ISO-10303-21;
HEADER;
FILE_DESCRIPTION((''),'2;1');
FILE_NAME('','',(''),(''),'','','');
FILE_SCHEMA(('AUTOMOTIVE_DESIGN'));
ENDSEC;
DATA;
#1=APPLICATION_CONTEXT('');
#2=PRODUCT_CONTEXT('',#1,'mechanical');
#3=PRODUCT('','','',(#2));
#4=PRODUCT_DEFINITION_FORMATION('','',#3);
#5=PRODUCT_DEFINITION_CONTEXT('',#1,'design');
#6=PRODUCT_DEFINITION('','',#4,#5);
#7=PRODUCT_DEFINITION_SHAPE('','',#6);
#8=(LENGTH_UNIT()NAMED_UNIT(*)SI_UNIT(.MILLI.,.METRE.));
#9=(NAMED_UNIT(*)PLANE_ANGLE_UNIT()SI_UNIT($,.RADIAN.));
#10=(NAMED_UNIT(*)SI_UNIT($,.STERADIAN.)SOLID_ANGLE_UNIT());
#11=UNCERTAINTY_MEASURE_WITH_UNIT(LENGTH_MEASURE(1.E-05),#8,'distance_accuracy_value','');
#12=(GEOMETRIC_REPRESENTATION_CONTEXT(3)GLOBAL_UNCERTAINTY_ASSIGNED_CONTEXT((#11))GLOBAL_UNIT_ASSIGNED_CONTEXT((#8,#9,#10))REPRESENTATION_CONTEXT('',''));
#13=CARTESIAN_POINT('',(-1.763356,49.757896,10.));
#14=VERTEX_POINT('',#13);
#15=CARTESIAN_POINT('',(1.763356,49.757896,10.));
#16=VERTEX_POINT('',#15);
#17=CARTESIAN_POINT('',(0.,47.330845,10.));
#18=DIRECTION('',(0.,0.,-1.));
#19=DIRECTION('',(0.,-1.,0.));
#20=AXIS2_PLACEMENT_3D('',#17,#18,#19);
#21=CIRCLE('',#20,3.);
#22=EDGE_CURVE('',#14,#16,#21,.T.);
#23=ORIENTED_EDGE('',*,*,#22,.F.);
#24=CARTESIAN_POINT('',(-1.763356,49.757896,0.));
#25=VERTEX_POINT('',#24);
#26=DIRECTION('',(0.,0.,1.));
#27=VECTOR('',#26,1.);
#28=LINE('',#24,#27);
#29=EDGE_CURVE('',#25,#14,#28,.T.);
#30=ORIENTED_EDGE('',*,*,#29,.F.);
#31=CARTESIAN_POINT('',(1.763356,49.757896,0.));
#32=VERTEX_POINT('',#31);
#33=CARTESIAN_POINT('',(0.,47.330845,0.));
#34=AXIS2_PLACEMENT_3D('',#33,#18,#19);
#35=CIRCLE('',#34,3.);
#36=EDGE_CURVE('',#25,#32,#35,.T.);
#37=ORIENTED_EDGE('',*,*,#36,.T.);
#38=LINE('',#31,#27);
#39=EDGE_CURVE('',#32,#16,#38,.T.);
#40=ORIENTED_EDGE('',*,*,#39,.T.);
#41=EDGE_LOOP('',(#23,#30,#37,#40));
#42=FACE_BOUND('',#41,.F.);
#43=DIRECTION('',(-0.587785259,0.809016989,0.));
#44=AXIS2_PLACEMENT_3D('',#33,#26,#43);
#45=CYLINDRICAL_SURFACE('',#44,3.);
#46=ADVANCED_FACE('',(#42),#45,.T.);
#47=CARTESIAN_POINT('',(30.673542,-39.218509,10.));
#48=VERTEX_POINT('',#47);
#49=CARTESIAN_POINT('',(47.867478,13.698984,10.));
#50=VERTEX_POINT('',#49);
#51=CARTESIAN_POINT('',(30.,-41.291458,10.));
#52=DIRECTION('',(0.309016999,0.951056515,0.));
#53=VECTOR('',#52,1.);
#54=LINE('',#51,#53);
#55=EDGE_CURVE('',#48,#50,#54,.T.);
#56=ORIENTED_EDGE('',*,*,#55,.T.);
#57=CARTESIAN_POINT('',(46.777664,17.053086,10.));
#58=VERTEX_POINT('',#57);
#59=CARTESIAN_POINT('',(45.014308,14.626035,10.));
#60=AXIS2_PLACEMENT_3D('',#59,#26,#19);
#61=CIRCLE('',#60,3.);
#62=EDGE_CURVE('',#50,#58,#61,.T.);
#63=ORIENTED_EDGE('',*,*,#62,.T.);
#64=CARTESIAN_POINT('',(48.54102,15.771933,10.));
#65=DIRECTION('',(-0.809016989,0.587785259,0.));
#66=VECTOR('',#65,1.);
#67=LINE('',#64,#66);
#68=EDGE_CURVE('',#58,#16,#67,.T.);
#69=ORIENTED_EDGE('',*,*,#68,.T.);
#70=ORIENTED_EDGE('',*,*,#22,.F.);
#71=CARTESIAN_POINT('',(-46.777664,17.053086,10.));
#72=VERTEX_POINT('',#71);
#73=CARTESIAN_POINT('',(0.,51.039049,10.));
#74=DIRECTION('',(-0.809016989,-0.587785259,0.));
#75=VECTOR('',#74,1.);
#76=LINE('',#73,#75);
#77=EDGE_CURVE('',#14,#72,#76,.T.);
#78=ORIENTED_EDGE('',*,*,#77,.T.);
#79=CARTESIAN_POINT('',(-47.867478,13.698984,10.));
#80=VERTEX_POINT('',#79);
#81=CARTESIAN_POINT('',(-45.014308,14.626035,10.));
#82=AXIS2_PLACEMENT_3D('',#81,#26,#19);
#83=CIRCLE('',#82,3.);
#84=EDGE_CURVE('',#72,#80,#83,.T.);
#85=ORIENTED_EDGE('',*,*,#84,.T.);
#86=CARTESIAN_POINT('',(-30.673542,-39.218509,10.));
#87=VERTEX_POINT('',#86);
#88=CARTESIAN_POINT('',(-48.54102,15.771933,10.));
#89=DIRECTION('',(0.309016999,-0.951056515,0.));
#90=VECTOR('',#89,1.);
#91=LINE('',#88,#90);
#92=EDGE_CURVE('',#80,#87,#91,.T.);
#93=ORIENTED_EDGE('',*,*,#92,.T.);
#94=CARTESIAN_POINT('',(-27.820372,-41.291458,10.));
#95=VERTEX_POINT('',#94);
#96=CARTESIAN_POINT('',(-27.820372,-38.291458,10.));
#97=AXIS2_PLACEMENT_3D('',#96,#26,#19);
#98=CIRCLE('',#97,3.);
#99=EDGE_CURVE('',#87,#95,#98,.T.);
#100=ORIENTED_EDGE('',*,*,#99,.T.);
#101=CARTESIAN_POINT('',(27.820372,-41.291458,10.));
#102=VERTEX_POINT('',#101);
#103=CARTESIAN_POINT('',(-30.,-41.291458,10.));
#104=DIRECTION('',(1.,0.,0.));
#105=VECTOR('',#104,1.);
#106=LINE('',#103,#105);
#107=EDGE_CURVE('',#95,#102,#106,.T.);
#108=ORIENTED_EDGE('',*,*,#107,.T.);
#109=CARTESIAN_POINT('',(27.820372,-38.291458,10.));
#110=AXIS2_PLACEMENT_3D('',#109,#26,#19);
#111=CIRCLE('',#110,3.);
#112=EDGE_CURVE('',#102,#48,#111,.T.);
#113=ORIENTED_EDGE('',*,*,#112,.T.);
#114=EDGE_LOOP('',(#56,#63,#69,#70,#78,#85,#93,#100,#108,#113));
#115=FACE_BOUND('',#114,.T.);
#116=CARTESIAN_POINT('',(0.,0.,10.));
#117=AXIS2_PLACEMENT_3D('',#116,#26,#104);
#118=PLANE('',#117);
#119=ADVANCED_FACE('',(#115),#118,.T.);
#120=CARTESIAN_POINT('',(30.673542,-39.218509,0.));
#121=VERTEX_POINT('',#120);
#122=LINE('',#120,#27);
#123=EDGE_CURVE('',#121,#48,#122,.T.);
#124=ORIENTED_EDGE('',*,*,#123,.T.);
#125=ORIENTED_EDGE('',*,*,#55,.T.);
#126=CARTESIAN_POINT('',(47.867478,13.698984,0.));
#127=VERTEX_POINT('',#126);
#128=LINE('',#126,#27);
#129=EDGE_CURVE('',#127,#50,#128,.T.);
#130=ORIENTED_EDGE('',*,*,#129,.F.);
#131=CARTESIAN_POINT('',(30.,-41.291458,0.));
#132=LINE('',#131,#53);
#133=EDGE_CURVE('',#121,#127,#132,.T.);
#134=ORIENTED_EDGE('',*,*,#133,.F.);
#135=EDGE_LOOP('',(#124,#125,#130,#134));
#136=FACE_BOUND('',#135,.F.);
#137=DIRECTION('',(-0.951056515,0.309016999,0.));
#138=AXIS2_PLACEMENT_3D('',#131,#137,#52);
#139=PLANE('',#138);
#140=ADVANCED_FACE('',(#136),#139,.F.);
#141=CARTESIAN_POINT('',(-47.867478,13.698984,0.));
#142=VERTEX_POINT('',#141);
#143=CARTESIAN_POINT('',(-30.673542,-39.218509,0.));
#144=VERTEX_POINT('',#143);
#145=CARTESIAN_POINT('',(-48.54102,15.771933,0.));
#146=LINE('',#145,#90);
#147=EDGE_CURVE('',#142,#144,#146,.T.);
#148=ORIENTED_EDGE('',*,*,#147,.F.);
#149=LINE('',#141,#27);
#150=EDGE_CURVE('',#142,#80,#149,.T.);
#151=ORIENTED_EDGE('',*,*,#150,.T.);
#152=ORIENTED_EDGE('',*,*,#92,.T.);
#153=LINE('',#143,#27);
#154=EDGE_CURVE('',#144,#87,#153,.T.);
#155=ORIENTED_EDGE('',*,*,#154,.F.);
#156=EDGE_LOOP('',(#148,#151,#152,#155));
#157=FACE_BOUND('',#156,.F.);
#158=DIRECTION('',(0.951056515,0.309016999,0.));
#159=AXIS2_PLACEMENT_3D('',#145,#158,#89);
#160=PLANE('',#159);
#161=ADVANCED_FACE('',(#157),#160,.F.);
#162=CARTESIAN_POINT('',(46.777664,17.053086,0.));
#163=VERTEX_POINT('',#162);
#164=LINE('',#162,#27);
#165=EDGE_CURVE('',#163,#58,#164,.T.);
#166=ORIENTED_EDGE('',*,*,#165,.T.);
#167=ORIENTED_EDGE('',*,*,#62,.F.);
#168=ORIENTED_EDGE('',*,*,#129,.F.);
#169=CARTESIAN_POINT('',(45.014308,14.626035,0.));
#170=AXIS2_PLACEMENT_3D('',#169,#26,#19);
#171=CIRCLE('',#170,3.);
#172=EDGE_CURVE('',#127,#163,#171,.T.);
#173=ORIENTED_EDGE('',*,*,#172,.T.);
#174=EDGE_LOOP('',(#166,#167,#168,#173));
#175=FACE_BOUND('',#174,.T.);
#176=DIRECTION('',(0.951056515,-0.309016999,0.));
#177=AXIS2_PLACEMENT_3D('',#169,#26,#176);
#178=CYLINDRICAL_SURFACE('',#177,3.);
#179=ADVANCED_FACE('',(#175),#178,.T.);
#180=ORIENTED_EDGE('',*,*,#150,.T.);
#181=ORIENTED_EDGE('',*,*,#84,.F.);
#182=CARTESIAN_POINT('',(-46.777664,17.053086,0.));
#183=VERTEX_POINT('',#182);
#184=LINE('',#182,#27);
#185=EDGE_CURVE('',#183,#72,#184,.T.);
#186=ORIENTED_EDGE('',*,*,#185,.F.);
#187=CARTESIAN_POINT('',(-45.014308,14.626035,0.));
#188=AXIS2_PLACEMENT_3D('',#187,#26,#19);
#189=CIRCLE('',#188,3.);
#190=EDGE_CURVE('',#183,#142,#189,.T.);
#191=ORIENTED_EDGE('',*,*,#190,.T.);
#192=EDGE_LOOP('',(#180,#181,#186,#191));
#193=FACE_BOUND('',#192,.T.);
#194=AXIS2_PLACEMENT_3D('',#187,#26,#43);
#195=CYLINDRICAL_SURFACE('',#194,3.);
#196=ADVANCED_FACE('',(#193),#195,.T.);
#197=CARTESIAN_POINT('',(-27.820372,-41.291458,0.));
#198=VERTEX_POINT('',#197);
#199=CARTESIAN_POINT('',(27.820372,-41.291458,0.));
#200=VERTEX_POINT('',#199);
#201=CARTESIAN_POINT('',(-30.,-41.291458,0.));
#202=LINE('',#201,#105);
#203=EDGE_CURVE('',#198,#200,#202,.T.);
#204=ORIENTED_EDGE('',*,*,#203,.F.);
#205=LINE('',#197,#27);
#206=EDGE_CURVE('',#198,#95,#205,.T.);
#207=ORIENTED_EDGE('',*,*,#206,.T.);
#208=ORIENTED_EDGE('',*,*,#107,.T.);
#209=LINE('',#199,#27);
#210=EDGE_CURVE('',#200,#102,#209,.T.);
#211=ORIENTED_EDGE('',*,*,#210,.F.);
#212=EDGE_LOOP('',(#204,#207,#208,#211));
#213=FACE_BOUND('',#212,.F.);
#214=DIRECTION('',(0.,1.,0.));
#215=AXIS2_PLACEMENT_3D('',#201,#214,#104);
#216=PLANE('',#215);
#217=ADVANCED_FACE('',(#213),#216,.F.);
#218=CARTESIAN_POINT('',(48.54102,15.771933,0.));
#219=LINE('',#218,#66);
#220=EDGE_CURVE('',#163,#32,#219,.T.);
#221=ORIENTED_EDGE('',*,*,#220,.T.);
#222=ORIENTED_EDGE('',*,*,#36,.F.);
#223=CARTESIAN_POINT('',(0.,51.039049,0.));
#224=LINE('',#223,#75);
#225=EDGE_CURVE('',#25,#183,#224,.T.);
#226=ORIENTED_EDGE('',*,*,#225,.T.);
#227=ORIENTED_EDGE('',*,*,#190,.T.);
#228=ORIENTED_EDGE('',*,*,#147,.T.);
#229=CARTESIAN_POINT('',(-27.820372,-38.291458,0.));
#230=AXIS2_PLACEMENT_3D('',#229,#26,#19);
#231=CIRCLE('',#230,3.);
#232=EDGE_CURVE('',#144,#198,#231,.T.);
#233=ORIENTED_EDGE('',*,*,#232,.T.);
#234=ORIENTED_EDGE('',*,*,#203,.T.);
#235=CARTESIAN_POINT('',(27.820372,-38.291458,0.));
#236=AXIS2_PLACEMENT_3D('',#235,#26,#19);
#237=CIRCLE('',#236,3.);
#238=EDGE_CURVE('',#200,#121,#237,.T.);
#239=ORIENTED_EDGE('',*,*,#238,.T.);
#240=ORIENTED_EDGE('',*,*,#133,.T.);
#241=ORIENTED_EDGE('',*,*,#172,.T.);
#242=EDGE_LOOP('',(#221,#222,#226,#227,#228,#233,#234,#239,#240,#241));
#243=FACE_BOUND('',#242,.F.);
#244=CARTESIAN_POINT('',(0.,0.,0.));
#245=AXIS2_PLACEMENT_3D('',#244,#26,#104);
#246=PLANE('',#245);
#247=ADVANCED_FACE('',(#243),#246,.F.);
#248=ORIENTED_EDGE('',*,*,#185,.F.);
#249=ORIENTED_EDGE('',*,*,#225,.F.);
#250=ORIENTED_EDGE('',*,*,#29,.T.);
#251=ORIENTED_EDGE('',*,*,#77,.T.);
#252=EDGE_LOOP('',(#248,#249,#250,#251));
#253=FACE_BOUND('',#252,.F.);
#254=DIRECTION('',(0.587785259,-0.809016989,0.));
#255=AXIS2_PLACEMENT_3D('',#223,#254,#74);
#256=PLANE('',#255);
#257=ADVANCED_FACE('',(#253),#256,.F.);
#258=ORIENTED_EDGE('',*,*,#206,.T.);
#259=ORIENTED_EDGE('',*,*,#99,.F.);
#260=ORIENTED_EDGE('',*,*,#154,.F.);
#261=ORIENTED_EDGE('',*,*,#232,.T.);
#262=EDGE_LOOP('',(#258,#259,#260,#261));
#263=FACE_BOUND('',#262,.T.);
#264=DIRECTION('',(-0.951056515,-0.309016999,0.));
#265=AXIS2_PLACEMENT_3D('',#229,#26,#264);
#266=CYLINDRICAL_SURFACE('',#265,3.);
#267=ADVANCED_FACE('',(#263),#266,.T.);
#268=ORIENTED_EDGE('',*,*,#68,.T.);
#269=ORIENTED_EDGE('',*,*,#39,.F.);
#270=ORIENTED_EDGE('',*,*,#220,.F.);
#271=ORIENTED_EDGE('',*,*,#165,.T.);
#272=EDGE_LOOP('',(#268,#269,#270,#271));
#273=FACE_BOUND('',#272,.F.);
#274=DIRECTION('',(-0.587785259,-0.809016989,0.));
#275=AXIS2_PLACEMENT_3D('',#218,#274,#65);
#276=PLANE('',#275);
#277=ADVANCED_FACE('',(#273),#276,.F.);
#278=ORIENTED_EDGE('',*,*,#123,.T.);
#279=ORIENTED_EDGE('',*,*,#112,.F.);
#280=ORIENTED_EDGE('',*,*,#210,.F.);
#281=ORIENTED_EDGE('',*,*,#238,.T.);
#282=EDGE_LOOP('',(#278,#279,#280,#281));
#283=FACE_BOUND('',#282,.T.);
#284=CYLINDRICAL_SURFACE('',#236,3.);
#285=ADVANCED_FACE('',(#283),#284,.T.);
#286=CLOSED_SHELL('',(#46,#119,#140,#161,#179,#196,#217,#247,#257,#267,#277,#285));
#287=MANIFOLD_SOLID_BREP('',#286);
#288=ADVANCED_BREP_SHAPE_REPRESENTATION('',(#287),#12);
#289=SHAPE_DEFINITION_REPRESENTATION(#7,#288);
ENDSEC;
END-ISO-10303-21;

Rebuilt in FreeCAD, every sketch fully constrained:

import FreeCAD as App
import Part
import Sketcher

V = App.Vector
Q = App.Units.Quantity


def edges_at(feature, points):
    """Names of the edges that pass closest to the given points."""
    edges = feature.Shape.Edges
    near = lambda p: min(range(len(edges)), key=lambda i: edges[i].distToShape(Part.Vertex(*p))[0])
    return sorted({f"Edge{near(p) + 1}" for p in points})

doc = App.newDocument("Part")
body = doc.addObject("PartDesign::Body", "Body")

sketch1 = body.newObject("Sketcher::SketchObject", "Sketch")
sketch1.AttachmentSupport = (doc.getObject("XY_Plane"), [""])
sketch1.MapMode = "FlatFace"
sketch1.addGeometry(Part.LineSegment(V(0, 51.039049, 0), V(-48.54102, 15.771933, 0)), False)
sketch1.addGeometry(Part.LineSegment(V(-48.54102, 15.771933, 0), V(-30, -41.291458, 0)), False)
sketch1.addGeometry(Part.LineSegment(V(-30, -41.291458, 0), V(30, -41.291458, 0)), False)
sketch1.addGeometry(Part.LineSegment(V(30, -41.291458, 0), V(48.54102, 15.771933, 0)), False)
sketch1.addGeometry(Part.LineSegment(V(48.54102, 15.771933, 0), V(0, 51.039049, 0)), False)
sketch1.addConstraint(Sketcher.Constraint("Coincident", 0, 2, 1, 1))
sketch1.addConstraint(Sketcher.Constraint("Coincident", 1, 2, 2, 1))
sketch1.addConstraint(Sketcher.Constraint("Coincident", 2, 2, 3, 1))
sketch1.addConstraint(Sketcher.Constraint("Coincident", 3, 2, 4, 1))
sketch1.addConstraint(Sketcher.Constraint("Coincident", 4, 2, 0, 1))
sketch1.addConstraint(Sketcher.Constraint("Horizontal", 2))
sketch1.addConstraint(Sketcher.Constraint("Symmetric", 0, 2, 3, 2, -2))
sketch1.addConstraint(Sketcher.Constraint("PointOnObject", 4, 2, -2))
sketch1.addConstraint(Sketcher.Constraint("Equal", 0, 1))
sketch1.addConstraint(Sketcher.Constraint("Equal", 1, 3))
sketch1.addConstraint(Sketcher.Constraint("DistanceX", 2, 1, 2, 2, 60.0))
sketch1.addConstraint(Sketcher.Constraint("Angle", 0, Q("-144 deg")))
sketch1.addConstraint(Sketcher.Constraint("Angle", 1, Q("-72 deg")))
sketch1.addConstraint(Sketcher.Constraint("DistanceY", -1, 1, 4, 2, 51.039049))
pad1 = body.newObject("PartDesign::Pad", "Pad")
pad1.Profile = sketch1
pad1.Length = 10
doc.recompute()

fillet = body.newObject("PartDesign::Fillet", "Fillet")
fillet.Base = (pad1, edges_at(pad1, [
    (48.541, 15.772, 5),
    (0, 51.039, 5),
    (-48.541, 15.772, 5),
    (-30, -41.291, 5),
    (30, -41.291, 5),
]))
fillet.Radius = 3

doc.recompute()
